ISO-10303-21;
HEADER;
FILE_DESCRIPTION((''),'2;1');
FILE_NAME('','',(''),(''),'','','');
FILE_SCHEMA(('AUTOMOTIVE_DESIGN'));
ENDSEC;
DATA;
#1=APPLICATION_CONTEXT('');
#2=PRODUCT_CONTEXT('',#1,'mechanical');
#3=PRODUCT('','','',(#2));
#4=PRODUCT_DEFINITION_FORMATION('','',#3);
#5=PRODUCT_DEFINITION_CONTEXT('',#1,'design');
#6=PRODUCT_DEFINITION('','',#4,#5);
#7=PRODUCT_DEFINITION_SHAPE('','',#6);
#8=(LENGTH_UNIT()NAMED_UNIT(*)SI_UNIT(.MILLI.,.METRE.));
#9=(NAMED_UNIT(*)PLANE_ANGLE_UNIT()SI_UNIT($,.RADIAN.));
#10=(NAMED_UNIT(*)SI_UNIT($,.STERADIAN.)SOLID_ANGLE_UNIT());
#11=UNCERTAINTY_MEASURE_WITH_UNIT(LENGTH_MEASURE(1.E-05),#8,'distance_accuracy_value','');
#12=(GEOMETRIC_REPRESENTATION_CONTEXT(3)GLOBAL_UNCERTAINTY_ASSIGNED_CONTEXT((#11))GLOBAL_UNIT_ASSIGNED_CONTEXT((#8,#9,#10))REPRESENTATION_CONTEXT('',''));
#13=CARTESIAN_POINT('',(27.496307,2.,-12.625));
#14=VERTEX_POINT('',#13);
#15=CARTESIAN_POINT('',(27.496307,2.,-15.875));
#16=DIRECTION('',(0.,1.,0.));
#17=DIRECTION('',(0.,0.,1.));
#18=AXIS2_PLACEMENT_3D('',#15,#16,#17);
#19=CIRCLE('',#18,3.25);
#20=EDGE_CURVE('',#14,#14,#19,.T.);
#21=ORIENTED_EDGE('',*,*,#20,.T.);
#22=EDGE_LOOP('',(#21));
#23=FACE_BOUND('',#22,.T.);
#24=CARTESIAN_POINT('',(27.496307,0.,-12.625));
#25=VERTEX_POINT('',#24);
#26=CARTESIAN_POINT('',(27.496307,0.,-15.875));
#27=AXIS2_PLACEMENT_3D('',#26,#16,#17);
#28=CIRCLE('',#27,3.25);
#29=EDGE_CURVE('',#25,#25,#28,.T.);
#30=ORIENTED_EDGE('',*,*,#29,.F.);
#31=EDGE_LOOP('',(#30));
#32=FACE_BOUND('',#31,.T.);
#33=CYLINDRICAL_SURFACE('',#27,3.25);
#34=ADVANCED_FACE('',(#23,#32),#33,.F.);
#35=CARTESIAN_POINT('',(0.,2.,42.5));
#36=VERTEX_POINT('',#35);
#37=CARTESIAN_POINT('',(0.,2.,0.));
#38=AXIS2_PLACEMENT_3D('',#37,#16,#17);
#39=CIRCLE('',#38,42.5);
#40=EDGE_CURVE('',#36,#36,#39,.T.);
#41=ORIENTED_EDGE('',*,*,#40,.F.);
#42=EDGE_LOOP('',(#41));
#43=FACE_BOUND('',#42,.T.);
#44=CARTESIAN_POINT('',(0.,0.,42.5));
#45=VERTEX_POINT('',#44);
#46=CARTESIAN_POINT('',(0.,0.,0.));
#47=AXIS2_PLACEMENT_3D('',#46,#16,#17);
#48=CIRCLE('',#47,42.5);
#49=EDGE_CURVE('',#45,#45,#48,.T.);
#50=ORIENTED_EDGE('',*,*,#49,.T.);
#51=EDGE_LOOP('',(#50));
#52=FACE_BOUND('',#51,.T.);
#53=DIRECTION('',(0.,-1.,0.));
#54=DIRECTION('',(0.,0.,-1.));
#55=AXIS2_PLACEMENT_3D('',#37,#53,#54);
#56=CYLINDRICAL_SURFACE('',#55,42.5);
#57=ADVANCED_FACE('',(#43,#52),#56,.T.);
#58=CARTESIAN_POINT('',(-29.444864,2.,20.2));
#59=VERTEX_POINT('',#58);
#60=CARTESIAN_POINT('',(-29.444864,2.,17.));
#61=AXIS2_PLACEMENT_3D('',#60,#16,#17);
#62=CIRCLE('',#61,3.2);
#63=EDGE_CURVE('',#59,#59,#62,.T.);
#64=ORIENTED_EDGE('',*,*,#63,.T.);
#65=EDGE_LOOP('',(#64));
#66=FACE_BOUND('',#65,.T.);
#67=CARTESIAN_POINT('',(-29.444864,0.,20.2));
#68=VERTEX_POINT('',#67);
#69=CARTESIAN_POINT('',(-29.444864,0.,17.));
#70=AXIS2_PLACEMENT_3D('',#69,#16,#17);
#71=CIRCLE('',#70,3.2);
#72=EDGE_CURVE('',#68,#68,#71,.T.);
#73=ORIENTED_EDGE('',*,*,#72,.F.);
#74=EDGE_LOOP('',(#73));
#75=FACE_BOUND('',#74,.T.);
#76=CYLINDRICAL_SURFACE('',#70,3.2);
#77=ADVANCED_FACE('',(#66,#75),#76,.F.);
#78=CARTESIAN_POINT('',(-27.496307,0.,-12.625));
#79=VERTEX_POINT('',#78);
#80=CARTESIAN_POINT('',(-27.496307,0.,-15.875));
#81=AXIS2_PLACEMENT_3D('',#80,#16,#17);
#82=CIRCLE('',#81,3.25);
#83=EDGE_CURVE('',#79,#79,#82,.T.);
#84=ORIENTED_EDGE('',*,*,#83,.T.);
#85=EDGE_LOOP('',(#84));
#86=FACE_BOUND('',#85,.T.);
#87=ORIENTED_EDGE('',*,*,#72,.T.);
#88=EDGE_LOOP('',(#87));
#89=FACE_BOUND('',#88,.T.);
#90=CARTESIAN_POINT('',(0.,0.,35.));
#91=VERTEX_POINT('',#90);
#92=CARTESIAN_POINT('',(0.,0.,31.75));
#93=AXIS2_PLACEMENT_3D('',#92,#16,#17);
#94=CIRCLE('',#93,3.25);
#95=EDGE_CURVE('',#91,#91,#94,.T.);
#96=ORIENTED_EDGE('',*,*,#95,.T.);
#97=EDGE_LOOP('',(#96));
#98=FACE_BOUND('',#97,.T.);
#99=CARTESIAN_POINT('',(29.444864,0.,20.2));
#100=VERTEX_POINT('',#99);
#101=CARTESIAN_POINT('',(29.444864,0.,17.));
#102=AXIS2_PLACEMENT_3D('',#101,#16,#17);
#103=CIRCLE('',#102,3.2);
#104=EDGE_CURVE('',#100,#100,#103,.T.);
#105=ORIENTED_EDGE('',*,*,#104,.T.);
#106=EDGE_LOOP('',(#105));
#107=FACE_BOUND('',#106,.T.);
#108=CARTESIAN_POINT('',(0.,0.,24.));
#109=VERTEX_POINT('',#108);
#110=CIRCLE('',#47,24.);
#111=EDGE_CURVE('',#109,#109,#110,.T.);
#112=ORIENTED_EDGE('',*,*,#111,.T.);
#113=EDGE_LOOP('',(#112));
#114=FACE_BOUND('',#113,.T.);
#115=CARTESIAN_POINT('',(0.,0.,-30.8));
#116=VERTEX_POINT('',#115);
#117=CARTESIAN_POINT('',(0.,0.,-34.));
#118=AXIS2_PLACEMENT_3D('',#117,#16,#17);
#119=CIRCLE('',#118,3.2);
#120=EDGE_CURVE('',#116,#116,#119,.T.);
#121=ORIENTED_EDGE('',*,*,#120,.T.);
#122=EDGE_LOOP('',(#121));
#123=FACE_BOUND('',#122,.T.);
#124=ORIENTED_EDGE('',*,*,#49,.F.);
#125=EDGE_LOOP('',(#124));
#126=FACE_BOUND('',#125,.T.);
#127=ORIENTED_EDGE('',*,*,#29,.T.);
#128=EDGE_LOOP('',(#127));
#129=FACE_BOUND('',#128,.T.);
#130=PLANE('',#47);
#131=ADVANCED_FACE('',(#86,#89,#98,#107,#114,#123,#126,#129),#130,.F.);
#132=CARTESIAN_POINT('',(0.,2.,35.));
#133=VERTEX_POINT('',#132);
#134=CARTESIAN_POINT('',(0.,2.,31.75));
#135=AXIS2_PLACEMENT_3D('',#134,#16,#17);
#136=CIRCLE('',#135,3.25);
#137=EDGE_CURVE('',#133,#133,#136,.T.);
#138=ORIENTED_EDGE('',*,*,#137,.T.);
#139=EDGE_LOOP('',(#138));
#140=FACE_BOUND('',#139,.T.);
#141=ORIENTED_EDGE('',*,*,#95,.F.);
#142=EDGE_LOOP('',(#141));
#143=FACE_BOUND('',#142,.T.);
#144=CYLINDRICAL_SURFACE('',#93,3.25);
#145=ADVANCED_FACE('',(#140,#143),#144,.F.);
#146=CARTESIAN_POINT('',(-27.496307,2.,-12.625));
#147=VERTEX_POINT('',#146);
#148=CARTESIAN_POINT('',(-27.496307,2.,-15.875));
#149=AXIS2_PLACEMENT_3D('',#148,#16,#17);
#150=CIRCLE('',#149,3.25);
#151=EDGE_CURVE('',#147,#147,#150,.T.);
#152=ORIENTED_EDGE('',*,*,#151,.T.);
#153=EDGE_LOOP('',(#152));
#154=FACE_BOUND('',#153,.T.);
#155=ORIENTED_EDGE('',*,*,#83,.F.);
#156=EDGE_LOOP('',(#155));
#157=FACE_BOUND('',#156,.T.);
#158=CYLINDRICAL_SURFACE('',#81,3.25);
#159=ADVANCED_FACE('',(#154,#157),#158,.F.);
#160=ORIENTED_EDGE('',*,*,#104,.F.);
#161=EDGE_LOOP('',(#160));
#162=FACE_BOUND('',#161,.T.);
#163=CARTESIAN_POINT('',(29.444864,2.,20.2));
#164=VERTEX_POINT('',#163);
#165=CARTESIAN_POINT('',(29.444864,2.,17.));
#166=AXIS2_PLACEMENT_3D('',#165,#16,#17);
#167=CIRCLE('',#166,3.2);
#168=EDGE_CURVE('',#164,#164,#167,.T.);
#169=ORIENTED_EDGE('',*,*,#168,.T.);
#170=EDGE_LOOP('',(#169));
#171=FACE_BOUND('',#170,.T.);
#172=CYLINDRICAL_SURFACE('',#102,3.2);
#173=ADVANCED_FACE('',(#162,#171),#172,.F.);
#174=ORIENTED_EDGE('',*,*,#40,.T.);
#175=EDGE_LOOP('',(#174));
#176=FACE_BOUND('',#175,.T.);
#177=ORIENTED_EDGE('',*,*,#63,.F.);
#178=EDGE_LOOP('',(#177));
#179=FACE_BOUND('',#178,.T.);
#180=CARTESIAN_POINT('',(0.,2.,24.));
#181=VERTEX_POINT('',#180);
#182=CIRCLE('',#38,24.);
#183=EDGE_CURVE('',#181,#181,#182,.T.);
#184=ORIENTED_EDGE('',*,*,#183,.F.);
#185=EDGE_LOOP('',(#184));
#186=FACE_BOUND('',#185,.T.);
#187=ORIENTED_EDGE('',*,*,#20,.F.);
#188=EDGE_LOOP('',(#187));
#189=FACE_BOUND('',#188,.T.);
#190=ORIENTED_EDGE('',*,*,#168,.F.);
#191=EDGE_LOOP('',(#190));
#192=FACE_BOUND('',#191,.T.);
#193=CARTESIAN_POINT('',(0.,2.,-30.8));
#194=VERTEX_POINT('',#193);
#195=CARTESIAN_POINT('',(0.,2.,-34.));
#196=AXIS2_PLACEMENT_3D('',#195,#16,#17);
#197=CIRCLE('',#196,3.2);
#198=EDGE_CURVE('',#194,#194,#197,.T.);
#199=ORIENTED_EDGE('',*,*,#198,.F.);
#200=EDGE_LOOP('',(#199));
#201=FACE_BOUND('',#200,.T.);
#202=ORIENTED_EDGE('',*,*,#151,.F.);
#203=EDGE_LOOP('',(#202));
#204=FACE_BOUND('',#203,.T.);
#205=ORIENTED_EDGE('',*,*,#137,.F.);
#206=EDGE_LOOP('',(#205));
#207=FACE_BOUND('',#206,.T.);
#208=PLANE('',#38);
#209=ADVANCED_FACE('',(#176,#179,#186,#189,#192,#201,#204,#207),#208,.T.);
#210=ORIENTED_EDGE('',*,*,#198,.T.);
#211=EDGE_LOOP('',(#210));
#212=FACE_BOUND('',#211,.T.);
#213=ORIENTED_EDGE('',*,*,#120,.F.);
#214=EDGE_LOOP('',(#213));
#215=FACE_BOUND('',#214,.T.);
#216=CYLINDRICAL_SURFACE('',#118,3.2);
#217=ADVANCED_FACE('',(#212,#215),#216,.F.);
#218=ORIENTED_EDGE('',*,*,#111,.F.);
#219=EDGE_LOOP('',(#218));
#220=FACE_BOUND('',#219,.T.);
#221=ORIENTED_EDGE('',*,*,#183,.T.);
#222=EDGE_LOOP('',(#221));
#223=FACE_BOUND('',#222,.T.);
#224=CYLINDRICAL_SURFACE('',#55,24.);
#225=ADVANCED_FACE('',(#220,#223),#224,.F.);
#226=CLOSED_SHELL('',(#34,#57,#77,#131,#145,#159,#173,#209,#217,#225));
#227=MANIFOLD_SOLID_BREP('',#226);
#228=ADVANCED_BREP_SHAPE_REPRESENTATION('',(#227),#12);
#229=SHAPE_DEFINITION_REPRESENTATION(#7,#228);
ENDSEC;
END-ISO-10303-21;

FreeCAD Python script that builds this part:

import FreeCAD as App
import Part
import Sketcher

V = App.Vector
Q = App.Units.Quantity

doc = App.newDocument("Part")
body = doc.addObject("PartDesign::Body", "Body")

# Sketch on XZ plane
sketch1 = doc.addObject("Sketcher::SketchObject", "Sketch")
body.addObject(sketch1)
sketch1.AttachmentSupport = (doc.XZ_Plane, [""])
sketch1.MapMode = "FlatFace"
sketch1.addGeometry([
    Part.Circle(V(0, 0, 0), V(0, 0, 1), 42),
    Part.Circle(V(0, 0, 0), V(0, 0, 1), 24),
], False)
sketch1.addConstraint([
    Sketcher.Constraint("Coincident", 0, 3, -1, 1),
    Sketcher.Constraint("Coincident", 1, 3, -1, 1),
    Sketcher.Constraint("Diameter", 0, Q("85 mm")),
    Sketcher.Constraint("Diameter", 1, Q("48 mm")),
])
pad1 = doc.addObject("PartDesign::Pad", "Pad")
body.addObject(pad1)
pad1.Profile = sketch1
pad1.Length = 2
pad1.Reversed = True

# Sketch on XZ plane
sketch2 = doc.addObject("Sketcher::SketchObject", "Sketch001")
body.addObject(sketch2)
sketch2.AttachmentSupport = (doc.XZ_Plane, [""])
sketch2.MapMode = "FlatFace"
sketch2.AttachmentOffset = App.Placement(V(0, 0, -2), App.Rotation())
sketch2.addGeometry([
    Part.Circle(V(0, 31.8, 0), V(0, 0, 1), 3.2),  # 0
    Part.Circle(V(-27.5, -15.9, 0), V(0, 0, 1), 3.2),  # 1
    Part.Circle(V(27.5, -15.9, 0), V(0, 0, 1), 3.2),  # 2
    Part.Circle(V(0, -34, 0), V(0, 0, 1), 3.2),  # 3
    Part.Circle(V(29.4, 17, 0), V(0, 0, 1), 3.2),  # 4
    Part.Circle(V(-29.4, 17, 0), V(0, 0, 1), 3.2),  # 5
], False)
sketch2.addConstraint([
    Sketcher.Constraint("Equal", 0, 1),
    Sketcher.Constraint("Equal", 1, 2),
    Sketcher.Constraint("Equal", 3, 4),
    Sketcher.Constraint("Equal", 4, 5),
    Sketcher.Constraint("Symmetric", 1, 3, 2, 3, -2),
    Sketcher.Constraint("Symmetric", 4, 3, 5, 3, -2),
    Sketcher.Constraint("PointOnObject", 0, 3, -2),
    Sketcher.Constraint("PointOnObject", 3, 3, -2),
    Sketcher.Constraint("Diameter", 0, Q("6.5 mm")),
    Sketcher.Constraint("Diameter", 3, Q("6.4 mm")),
    Sketcher.Constraint("DistanceY", 3, 3, -1, 1, Q("34 mm")),
    Sketcher.Constraint("DistanceY", -1, 1, 4, 3, Q("17 mm")),
    Sketcher.Constraint("DistanceY", -1, 1, 0, 3, Q("31.75 mm")),
    Sketcher.Constraint("DistanceY", 1, 3, -1, 1, Q("15.875 mm")),
    Sketcher.Constraint("DistanceX", 1, 3, 4, 3, Q("56.94117 mm")),
    Sketcher.Constraint("DistanceX", 1, 3, -1, 1, Q("27.496307 mm")),
])
pocket1 = doc.addObject("PartDesign::Pocket", "Pocket")
body.addObject(pocket1)
pocket1.Profile = sketch2
pocket1.Length = 2
pocket1.Reversed = True

doc.recompute()
